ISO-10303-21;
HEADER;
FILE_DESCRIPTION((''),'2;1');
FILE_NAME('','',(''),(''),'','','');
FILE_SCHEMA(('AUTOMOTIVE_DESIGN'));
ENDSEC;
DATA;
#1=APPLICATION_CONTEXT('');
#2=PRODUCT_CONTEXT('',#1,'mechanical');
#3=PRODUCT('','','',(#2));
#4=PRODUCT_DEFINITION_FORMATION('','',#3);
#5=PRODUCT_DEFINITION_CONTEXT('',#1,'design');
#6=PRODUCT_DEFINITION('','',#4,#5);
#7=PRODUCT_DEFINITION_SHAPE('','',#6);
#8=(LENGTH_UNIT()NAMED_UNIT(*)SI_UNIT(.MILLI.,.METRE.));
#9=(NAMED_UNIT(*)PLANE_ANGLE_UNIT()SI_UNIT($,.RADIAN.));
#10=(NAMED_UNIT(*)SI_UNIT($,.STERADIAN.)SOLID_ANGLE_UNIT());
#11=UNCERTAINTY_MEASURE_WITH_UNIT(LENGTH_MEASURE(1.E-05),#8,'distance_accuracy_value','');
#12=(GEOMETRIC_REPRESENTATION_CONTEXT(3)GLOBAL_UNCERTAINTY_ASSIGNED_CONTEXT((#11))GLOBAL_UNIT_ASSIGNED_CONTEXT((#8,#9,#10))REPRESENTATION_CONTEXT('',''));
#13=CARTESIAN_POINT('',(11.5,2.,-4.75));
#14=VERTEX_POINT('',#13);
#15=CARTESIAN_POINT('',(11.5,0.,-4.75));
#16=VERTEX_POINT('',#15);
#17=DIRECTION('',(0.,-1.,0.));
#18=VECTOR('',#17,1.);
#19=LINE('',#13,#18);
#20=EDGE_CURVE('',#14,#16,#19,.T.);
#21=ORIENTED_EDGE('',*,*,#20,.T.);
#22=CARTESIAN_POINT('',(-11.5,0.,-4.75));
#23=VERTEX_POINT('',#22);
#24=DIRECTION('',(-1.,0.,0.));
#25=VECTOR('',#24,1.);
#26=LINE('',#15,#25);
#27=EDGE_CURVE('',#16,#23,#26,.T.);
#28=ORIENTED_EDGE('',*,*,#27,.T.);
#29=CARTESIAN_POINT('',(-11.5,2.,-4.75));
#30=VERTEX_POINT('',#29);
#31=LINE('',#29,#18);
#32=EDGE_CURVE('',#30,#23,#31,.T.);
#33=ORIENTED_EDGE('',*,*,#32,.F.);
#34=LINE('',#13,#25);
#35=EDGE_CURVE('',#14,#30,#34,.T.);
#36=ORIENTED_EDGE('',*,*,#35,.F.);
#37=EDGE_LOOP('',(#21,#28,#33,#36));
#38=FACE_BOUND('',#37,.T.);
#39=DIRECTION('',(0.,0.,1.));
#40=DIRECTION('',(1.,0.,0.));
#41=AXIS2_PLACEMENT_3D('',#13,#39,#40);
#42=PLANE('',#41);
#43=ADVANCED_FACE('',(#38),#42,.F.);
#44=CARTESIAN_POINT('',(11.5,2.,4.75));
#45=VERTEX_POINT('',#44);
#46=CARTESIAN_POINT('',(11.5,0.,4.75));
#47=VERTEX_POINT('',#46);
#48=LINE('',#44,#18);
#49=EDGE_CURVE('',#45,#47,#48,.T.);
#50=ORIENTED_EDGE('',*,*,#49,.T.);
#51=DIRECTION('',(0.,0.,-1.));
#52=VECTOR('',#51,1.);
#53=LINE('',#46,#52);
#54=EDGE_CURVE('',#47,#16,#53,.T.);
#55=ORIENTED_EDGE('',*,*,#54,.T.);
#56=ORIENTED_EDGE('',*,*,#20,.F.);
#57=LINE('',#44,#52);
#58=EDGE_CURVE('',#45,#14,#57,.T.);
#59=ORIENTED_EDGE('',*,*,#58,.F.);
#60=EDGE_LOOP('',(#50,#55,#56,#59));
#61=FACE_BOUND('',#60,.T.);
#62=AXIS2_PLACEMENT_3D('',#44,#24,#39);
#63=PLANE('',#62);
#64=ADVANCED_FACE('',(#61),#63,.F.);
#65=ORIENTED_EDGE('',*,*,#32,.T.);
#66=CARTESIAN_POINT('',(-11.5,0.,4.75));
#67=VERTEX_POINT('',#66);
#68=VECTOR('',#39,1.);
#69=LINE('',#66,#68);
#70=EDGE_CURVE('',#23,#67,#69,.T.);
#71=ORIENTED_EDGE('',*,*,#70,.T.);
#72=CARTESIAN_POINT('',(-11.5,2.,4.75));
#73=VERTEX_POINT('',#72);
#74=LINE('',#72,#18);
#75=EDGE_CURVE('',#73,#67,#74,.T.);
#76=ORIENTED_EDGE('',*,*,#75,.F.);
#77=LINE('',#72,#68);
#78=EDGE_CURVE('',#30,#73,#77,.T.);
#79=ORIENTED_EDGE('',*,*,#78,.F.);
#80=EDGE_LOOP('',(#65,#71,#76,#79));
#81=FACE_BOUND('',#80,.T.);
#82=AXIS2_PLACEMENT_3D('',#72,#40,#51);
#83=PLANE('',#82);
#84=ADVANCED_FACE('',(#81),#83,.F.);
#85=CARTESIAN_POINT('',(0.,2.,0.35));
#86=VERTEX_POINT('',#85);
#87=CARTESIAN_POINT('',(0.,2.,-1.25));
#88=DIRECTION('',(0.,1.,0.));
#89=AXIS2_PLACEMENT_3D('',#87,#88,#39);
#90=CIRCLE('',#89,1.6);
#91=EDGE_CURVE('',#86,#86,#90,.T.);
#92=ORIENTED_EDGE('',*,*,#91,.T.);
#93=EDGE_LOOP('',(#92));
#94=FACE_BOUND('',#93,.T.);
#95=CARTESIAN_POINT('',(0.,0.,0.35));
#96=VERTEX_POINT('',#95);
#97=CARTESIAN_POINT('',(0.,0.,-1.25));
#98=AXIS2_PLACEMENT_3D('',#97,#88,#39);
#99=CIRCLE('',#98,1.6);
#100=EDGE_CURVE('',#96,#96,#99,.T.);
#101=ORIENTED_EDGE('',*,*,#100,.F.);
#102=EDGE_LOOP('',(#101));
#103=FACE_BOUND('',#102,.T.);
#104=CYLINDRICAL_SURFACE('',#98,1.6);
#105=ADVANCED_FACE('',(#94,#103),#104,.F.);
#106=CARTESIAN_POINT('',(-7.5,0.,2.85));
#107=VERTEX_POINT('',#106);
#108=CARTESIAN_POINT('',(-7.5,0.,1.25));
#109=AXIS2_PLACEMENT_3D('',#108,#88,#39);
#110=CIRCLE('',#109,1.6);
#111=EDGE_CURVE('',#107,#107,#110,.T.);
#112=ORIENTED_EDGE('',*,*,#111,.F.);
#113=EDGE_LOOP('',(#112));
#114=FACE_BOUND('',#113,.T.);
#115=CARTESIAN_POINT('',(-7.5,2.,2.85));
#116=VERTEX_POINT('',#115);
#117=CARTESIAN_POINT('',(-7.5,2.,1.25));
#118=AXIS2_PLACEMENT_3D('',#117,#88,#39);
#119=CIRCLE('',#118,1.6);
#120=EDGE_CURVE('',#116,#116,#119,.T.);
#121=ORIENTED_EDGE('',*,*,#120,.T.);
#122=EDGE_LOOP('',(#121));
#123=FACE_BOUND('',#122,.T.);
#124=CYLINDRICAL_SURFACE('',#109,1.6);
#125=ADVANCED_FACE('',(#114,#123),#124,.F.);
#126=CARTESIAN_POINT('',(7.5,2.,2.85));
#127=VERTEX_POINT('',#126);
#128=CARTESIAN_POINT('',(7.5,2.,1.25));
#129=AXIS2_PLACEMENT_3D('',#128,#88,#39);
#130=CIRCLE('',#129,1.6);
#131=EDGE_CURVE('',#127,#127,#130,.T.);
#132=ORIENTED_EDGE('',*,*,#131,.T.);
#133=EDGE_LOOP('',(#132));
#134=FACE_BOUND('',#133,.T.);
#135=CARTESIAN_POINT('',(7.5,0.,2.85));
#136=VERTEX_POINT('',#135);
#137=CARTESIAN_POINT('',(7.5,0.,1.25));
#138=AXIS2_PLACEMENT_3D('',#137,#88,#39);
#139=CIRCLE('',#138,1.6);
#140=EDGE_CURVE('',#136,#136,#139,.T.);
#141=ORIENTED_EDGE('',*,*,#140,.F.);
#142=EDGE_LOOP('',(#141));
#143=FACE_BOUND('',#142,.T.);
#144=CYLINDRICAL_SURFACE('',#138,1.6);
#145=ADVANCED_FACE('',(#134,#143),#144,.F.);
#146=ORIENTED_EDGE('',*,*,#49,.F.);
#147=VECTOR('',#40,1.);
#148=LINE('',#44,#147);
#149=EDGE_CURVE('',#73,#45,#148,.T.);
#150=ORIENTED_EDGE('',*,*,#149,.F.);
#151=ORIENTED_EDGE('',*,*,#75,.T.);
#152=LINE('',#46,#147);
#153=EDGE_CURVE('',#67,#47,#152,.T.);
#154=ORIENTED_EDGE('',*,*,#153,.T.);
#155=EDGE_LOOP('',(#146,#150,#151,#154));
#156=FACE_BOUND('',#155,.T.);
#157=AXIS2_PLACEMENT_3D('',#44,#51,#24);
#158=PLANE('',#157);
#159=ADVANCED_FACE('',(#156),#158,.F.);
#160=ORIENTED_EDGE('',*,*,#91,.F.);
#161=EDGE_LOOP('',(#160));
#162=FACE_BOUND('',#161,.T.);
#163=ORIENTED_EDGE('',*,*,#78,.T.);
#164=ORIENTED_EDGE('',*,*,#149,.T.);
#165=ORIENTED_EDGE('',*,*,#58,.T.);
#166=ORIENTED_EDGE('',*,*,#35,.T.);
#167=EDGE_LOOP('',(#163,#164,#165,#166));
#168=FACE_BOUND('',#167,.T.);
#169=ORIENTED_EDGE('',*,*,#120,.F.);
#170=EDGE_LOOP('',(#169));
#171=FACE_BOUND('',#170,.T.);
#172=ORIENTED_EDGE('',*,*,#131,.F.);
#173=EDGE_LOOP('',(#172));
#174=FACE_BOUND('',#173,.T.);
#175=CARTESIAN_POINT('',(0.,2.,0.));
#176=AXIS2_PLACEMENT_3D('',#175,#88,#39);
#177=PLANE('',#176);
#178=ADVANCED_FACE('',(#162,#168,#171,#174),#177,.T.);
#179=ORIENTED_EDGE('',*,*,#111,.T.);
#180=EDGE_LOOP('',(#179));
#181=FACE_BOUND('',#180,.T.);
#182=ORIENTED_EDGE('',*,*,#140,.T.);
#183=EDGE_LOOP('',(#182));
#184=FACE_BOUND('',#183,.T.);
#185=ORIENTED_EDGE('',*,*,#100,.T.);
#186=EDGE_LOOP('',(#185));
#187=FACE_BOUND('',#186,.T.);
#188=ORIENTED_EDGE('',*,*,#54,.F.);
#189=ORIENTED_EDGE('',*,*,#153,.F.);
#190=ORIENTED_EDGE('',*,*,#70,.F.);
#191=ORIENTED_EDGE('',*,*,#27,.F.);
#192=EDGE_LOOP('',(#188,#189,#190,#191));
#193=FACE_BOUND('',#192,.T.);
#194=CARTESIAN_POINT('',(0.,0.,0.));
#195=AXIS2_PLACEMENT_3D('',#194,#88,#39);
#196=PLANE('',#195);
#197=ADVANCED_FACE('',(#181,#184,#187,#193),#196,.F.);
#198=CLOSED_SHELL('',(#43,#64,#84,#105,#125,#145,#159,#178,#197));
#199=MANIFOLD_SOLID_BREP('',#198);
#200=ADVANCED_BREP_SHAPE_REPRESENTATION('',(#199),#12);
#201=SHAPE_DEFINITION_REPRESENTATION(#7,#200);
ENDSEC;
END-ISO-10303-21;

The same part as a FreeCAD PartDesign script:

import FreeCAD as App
import Part
import Sketcher
Q = App.Units.Quantity

doc = App.newDocument("Part")
body = doc.addObject("PartDesign::Body", "Body")

sketch1 = body.newObject("Sketcher::SketchObject", "Sketch")
sketch1.AttachmentSupport = (doc.getObject("XZ_Plane"), [""])
sketch1.MapMode = "FlatFace"
sketch1.addGeometry([
    Part.LineSegment(App.Vector(-12, -5, 0), App.Vector(-12, 5, 0)),
    Part.LineSegment(App.Vector(-12, 5, 0), App.Vector(12, 5, 0)),
    Part.LineSegment(App.Vector(12, 5, 0), App.Vector(12, -5, 0)),
    Part.LineSegment(App.Vector(12, -5, 0), App.Vector(-12, -5, 0)),
], False)
sketch1.addConstraint([
    Sketcher.Constraint("Coincident", 0, 2, 1, 1),
    Sketcher.Constraint("Coincident", 1, 2, 2, 1),
    Sketcher.Constraint("Coincident", 2, 2, 3, 1),
    Sketcher.Constraint("Coincident", 3, 2, 0, 1),
    Sketcher.Constraint("Vertical", 0),
    Sketcher.Constraint("Horizontal", 1),
    Sketcher.Constraint("Vertical", 2),
    Sketcher.Constraint("Horizontal", 3),
    Sketcher.Constraint("Symmetric", 0, 2, 2, 2, -1, 1),
    Sketcher.Constraint("DistanceX", 1, 1, 1, 2, Q("23 mm")),
    Sketcher.Constraint("DistanceY", 0, 1, 0, 2, Q("9.5 mm")),
])
pad1 = body.newObject("PartDesign::Pad", "Pad")
pad1.Profile = sketch1
pad1.Length = 2
pad1.Reversed = True

sketch2 = body.newObject("Sketcher::SketchObject", "Sketch001")
sketch2.AttachmentSupport = (doc.getObject("XZ_Plane"), [""])
sketch2.MapMode = "FlatFace"
sketch2.AttachmentOffset = App.Placement(App.Vector(0, 0, -2), App.Rotation())
sketch2.addGeometry([
    Part.Circle(App.Vector(-7.5, 1.2, 0), App.Vector(0, 0, 1), 1.6),
    Part.Circle(App.Vector(7.5, 1.2, 0), App.Vector(0, 0, 1), 1.6),
    Part.Circle(App.Vector(0, -1.2, 0), App.Vector(0, 0, 1), 1.6),
], False)
sketch2.addConstraint([
    Sketcher.Constraint("Equal", 0, 1),
    Sketcher.Constraint("Equal", 1, 2),
    Sketcher.Constraint("Symmetric", 0, 3, 1, 3, -2),
    Sketcher.Constraint("PointOnObject", 2, 3, -2),
    Sketcher.Constraint("Diameter", 0, Q("3.2 mm")),
    Sketcher.Constraint("DistanceX", 0, 3, 1, 3, Q("15 mm")),
    Sketcher.Constraint("DistanceY", 2, 3, 0, 3, Q("2.5 mm")),
    Sketcher.Constraint("DistanceY", -1, 1, 0, 3, Q("1.25 mm")),
])
pocket1 = body.newObject("PartDesign::Pocket", "Pocket")
pocket1.Profile = sketch2
pocket1.Type = "ThroughAll"
pocket1.Reversed = True

doc.recompute()
